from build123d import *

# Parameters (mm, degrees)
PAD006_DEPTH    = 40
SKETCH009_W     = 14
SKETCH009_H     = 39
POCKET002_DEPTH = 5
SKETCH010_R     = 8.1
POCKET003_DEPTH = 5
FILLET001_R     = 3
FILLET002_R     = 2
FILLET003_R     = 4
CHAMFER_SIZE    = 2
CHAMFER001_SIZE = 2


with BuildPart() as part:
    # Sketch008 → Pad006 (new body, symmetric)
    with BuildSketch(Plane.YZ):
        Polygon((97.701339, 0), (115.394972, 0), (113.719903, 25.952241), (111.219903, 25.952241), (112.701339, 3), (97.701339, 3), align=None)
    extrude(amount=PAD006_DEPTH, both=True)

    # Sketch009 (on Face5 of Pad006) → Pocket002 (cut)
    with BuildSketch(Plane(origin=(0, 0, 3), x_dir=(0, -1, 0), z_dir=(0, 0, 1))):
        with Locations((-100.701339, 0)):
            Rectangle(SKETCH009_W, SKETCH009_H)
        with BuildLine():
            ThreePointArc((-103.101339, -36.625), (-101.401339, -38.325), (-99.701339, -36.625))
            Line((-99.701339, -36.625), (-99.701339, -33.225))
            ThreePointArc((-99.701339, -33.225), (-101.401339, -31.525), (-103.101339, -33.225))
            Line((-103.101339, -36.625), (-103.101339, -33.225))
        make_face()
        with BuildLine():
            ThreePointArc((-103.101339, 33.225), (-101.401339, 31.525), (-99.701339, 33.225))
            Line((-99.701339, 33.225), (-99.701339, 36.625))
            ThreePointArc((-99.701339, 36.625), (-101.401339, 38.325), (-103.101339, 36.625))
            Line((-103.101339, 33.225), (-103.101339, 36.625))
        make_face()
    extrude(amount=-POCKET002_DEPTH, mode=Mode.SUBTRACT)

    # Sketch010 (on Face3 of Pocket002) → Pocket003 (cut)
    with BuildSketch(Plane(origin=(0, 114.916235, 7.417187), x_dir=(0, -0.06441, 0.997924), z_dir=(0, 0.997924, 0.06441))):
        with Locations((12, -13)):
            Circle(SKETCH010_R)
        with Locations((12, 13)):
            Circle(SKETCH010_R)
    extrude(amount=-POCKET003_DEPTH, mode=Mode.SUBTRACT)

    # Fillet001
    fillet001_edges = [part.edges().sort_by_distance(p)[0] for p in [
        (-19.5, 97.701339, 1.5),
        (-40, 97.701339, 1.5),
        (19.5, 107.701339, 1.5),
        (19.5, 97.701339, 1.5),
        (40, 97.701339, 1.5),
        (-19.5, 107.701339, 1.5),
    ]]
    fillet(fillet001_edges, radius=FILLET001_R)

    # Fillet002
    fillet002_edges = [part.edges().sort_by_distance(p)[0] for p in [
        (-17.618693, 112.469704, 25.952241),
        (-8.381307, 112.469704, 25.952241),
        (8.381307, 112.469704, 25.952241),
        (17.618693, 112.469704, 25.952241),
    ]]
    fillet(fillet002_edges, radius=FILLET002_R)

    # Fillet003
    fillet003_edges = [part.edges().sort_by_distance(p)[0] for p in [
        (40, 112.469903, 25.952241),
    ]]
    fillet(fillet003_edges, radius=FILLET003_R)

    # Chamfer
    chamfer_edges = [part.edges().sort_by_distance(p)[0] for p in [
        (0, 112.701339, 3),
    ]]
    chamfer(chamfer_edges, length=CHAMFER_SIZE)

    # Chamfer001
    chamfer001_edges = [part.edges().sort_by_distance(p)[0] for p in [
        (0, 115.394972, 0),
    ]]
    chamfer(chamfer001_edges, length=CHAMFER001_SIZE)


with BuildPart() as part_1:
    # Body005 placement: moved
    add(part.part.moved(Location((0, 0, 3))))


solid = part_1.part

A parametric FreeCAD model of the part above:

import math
import FreeCAD as App
import Part
import Sketcher
Q = App.Units.Quantity


def edges_at(feature, points):
    """Names of the edges that pass closest to the given points."""
    edges = feature.Shape.Edges
    near = lambda p: min(range(len(edges)), key=lambda i: edges[i].distToShape(Part.Vertex(*p))[0])
    return sorted({f"Edge{near(p) + 1}" for p in points})


def add_polygon(sketch, points):
    """Adds a closed chain of lines whose ends are joined by coincident constraints."""
    first, n = sketch.GeometryCount, len(points)
    for a, b in zip(points, points[1:] + points[:1]):
        sketch.addGeometry(Part.LineSegment(App.Vector(*a, 0), App.Vector(*b, 0)), False)
    for i in range(n):
        sketch.addConstraint(Sketcher.Constraint("Coincident", first + i, 2, first + (i + 1) % n, 1))

doc = App.newDocument("Part")
body = doc.addObject("PartDesign::Body", "Body")

sketch1 = body.newObject("Sketcher::SketchObject", "Sketch")
sketch1.AttachmentSupport = (doc.getObject("YZ_Plane"), [""])
sketch1.MapMode = "FlatFace"
add_polygon(sketch1, [(97.7, 0), (115.4, 0), (113.7, 26), (111.2, 26), (112.7, 3), (97.7, 3)])
sketch1.addConstraint(Sketcher.Constraint("Horizontal", 0))
sketch1.addConstraint(Sketcher.Constraint("Horizontal", 2))
sketch1.addConstraint(Sketcher.Constraint("Horizontal", 4))
sketch1.addConstraint(Sketcher.Constraint("Vertical", 5))
sketch1.addConstraint(Sketcher.Constraint("PointOnObject", 0, 2, -1))
sketch1.addConstraint(Sketcher.Constraint("Parallel", 1, 3))
sketch1.addConstraint(Sketcher.Constraint("DistanceX", 4, 2, 4, 1, Q("15 mm")))
sketch1.addConstraint(Sketcher.Constraint("DistanceY", 5, 2, 5, 1, Q("3 mm")))
sketch1.addConstraint(Sketcher.Constraint("Distance", 3, Q("23 mm")))
sketch1.addConstraint(Sketcher.Constraint("DistanceX", 2, 2, 2, 1, Q("2.5 mm")))
sketch1.addConstraint(Sketcher.Constraint("DistanceX", 0, 1, 0, 2, Q("17.693633 mm")))
sketch1.addConstraint(Sketcher.Constraint("DistanceX", -1, 1, 0, 2, Q("115.394972 mm")))
pad1 = body.newObject("PartDesign::Pad", "Pad")
pad1.Profile = sketch1
pad1.Length = 80
pad1.Midplane = True

sketch2 = body.newObject("Sketcher::SketchObject", "Sketch001")
sketch2.AttachmentSupport = (doc.getObject("XY_Plane"), [""])
sketch2.MapMode = "FlatFace"
sketch2.AttachmentOffset = App.Placement(App.Vector(0, 0, 3), App.Rotation())
add_polygon(sketch2, [(19.5, 107.7), (-19.5, 107.7), (-19.5, 93.7), (19.5, 93.7)])
sketch2.addGeometry(Part.ArcOfCircle(Part.Circle(App.Vector(-36.6, 101.4, 0), App.Vector(0, 0, 1), 1.7), math.radians(90), math.radians(270)), False)
sketch2.addGeometry(Part.LineSegment(App.Vector(-36.6, 99.7, 0), App.Vector(-33.2, 99.7, 0)), False)
sketch2.addGeometry(Part.ArcOfCircle(Part.Circle(App.Vector(-33.2, 101.4, 0), App.Vector(0, 0, 1), 1.7), math.radians(-90), math.radians(90)), False)
sketch2.addGeometry(Part.LineSegment(App.Vector(-33.2, 103.1, 0), App.Vector(-36.6, 103.1, 0)), False)
sketch2.addGeometry(Part.ArcOfCircle(Part.Circle(App.Vector(33.2, 101.4, 0), App.Vector(0, 0, 1), 1.7), math.radians(90), math.radians(270)), False)
sketch2.addGeometry(Part.LineSegment(App.Vector(33.2, 99.7, 0), App.Vector(36.6, 99.7, 0)), False)
sketch2.addGeometry(Part.ArcOfCircle(Part.Circle(App.Vector(36.6, 101.4, 0), App.Vector(0, 0, 1), 1.7), math.radians(-90), math.radians(90)), False)
sketch2.addGeometry(Part.LineSegment(App.Vector(36.6, 103.1, 0), App.Vector(33.2, 103.1, 0)), False)
sketch2.addConstraint(Sketcher.Constraint("Tangent", 4, 2, 5, 1))
sketch2.addConstraint(Sketcher.Constraint("Tangent", 5, 2, 6, 1))
sketch2.addConstraint(Sketcher.Constraint("Tangent", 6, 2, 7, 1))
sketch2.addConstraint(Sketcher.Constraint("Tangent", 7, 2, 4, 1))
sketch2.addConstraint(Sketcher.Constraint("Tangent", 8, 2, 9, 1))
sketch2.addConstraint(Sketcher.Constraint("Tangent", 9, 2, 10, 1))
sketch2.addConstraint(Sketcher.Constraint("Tangent", 10, 2, 11, 1))
sketch2.addConstraint(Sketcher.Constraint("Tangent", 11, 2, 8, 1))
sketch2.addConstraint(Sketcher.Constraint("Horizontal", 0))
sketch2.addConstraint(Sketcher.Constraint("Vertical", 1))
sketch2.addConstraint(Sketcher.Constraint("Horizontal", 2))
sketch2.addConstraint(Sketcher.Constraint("Vertical", 3))
sketch2.addConstraint(Sketcher.Constraint("Horizontal", 5))
sketch2.addConstraint(Sketcher.Constraint("Horizontal", 7))
sketch2.addConstraint(Sketcher.Constraint("Horizontal", 9))
sketch2.addConstraint(Sketcher.Constraint("Horizontal", 11))
sketch2.addConstraint(Sketcher.Constraint("Equal", 6, 8))
sketch2.addConstraint(Sketcher.Constraint("Symmetric", 6, 3, 8, 3, -2))
sketch2.addConstraint(Sketcher.Constraint("Equal", 7, 9))
sketch2.addConstraint(Sketcher.Constraint("Radius", 4, Q("1.7 mm")))
sketch2.addConstraint(Sketcher.Constraint("DistanceX", 0, 2, 0, 1, Q("39 mm")))
sketch2.addConstraint(Sketcher.Constraint("DistanceY", 1, 2, 1, 1, Q("14 mm")))
sketch2.addConstraint(Sketcher.Constraint("DistanceX", 5, 1, 5, 2, Q("3.4 mm")))
sketch2.addConstraint(Sketcher.Constraint("DistanceY", 1, 2, 4, 2, Q("6 mm")))
sketch2.addConstraint(Sketcher.Constraint("DistanceX", 0, 2, -1, 1, Q("19.5 mm")))
sketch2.addConstraint(Sketcher.Constraint("DistanceX", 6, 3, 8, 3, Q("66.45 mm")))
sketch2.addConstraint(Sketcher.Constraint("DistanceY", -1, 1, 4, 3, Q("101.401339 mm")))
pocket1 = body.newObject("PartDesign::Pocket", "Pocket")
pocket1.Profile = sketch2
pocket1.Length = 5

sketch3 = body.newObject("Sketcher::SketchObject", "Sketch002")
sketch3.Placement = App.Placement(App.Vector(0, 114.916235, 7.417187), App.Rotation(App.Vector(0, -0.064409969, 0.997923522), App.Vector(1, 0, 0), App.Vector(0, 0.997923522, 0.064409969), "ZXY"))
sketch3.addGeometry(Part.Circle(App.Vector(12, -13, 0), App.Vector(0, 0, 1), 8), False)
sketch3.addGeometry(Part.Circle(App.Vector(12, 13, 0), App.Vector(0, 0, 1), 8), False)
sketch3.addConstraint(Sketcher.Constraint("Equal", 0, 1))
sketch3.addConstraint(Sketcher.Constraint("Symmetric", 0, 3, 1, 3, -1))
sketch3.addConstraint(Sketcher.Constraint("Diameter", 0, Q("16.2 mm")))
sketch3.addConstraint(Sketcher.Constraint("DistanceX", -1, 1, 0, 3, Q("12 mm")))
sketch3.addConstraint(Sketcher.Constraint("DistanceY", 0, 3, -1, 1, Q("13 mm")))
pocket2 = body.newObject("PartDesign::Pocket", "Pocket001")
pocket2.Profile = sketch3
pocket2.Length = 5
doc.recompute()

fillet = body.newObject("PartDesign::Fillet", "Fillet")
fillet.Base = (pocket2, edges_at(pocket2, [
    (-19.5, 97.701, 1.5),
    (-40, 97.701, 1.5),
    (19.5, 107.701, 1.5),
    (19.5, 97.701, 1.5),
    (40, 97.701, 1.5),
    (-19.5, 107.701, 1.5),
]))
fillet.Radius = 3
doc.recompute()

fillet2 = body.newObject("PartDesign::Fillet", "Fillet001")
fillet2.Base = (fillet, edges_at(fillet, [
    (-17.619, 112.47, 25.952),
    (-8.381, 112.47, 25.952),
    (8.381, 112.47, 25.952),
    (17.619, 112.47, 25.952),
]))
fillet2.Radius = 2
doc.recompute()

fillet3 = body.newObject("PartDesign::Fillet", "Fillet002")
fillet3.Base = (fillet2, edges_at(fillet2, [(40, 112.47, 25.952)]))
fillet3.Radius = 4
doc.recompute()

chamfer = body.newObject("PartDesign::Chamfer", "Chamfer")
chamfer.Base = (fillet3, edges_at(fillet3, [(0, 112.701, 3)]))
chamfer.Size = 2
doc.recompute()

chamfer2 = body.newObject("PartDesign::Chamfer", "Chamfer001")
chamfer2.Base = (chamfer, edges_at(chamfer, [(0, 115.395, 0)]))
chamfer2.Size = 2
body2 = doc.addObject("PartDesign::Body", "Body001")
doc.recompute()

body.Placement = App.Placement(App.Vector(0, 0, 3), App.Rotation(App.Vector(0, 0, 1), 0))
boolean = body2.newObject("PartDesign::Boolean", "Boolean")
boolean.Type = "Fuse"
boolean.addObjects([body])

doc.recompute()
